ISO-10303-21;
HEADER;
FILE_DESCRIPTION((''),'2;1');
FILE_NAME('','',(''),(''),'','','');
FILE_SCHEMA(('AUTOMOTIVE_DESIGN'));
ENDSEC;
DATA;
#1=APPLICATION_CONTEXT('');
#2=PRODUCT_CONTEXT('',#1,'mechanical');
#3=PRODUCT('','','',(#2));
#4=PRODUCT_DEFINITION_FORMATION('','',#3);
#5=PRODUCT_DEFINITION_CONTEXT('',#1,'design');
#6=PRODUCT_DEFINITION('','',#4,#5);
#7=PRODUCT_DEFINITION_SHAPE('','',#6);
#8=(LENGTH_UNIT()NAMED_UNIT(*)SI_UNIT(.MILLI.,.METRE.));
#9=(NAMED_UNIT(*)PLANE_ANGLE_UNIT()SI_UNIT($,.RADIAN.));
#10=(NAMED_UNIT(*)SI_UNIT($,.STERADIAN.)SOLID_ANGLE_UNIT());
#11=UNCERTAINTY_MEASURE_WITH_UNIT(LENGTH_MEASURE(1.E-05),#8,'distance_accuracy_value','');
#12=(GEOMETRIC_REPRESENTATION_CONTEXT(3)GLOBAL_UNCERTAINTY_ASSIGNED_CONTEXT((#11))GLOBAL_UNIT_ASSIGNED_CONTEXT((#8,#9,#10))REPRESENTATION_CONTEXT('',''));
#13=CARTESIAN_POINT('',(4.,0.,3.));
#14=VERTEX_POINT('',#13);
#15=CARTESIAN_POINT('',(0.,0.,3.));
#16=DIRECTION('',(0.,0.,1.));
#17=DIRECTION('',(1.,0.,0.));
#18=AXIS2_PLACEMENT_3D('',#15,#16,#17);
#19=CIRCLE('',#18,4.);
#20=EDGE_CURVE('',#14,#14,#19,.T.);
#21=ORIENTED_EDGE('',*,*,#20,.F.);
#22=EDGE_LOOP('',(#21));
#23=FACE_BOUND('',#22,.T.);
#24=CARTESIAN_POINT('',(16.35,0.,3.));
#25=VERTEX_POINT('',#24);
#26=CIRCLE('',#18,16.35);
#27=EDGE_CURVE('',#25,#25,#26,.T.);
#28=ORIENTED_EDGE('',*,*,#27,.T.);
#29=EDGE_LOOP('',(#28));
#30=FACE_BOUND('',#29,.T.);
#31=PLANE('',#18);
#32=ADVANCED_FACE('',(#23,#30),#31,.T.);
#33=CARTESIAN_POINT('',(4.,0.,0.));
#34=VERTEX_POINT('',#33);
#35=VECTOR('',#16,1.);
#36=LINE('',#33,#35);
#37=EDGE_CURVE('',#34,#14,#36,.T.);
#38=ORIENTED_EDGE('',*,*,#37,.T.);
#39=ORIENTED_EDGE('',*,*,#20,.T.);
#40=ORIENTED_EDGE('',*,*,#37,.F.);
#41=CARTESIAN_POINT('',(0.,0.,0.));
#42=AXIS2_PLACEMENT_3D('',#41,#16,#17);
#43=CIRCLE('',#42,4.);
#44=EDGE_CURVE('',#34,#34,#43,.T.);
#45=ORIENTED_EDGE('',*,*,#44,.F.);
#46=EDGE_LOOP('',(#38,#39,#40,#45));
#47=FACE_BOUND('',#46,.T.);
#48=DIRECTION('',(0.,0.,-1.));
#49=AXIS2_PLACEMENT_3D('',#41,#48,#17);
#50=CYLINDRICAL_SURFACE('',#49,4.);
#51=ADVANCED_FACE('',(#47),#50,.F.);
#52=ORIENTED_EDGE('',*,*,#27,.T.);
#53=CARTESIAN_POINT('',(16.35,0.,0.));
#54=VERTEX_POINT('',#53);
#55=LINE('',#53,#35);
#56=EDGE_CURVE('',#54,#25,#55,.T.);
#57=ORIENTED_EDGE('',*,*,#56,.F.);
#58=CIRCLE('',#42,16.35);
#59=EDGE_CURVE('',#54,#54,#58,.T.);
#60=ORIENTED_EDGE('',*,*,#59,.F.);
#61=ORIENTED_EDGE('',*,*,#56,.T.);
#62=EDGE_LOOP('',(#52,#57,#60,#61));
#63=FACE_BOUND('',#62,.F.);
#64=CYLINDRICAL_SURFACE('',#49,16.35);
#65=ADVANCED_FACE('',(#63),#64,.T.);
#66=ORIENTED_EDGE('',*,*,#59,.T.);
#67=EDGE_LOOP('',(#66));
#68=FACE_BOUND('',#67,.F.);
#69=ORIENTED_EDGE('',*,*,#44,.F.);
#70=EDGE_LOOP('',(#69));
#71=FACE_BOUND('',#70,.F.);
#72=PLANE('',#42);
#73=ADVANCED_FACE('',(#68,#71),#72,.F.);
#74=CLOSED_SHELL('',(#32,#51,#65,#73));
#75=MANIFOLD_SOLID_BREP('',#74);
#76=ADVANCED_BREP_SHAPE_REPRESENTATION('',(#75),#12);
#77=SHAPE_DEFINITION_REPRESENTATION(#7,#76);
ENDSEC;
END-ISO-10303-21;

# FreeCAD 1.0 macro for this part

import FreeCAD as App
import Part
import Sketcher

V = App.Vector
Q = App.Units.Quantity

doc = App.newDocument("Part")
body = doc.addObject("PartDesign::Body", "Body")

sketch1 = doc.addObject("Sketcher::SketchObject", "Sketch")
body.addObject(sketch1)
sketch1.AttachmentSupport = (doc.XY_Plane, [""])
sketch1.MapMode = "FlatFace"
sketch1.addGeometry([
    Part.Circle(V(0, 0, 0), V(0, 0, 1), 16.35),
    Part.Circle(V(0, 0, 0), V(0, 0, 1), 4),
], False)
sketch1.addConstraint([
    Sketcher.Constraint("Coincident", 0, 3, -1, 1),
    Sketcher.Constraint("Coincident", 1, 3, -1, 1),
    Sketcher.Constraint("Diameter", 1, Q("8 mm")),
    Sketcher.Constraint("Diameter", 0, Q("32.7 mm")),
])
pad1 = doc.addObject("PartDesign::Pad", "Pad")
body.addObject(pad1)
pad1.Profile = sketch1
pad1.Length = 3

doc.recompute()
